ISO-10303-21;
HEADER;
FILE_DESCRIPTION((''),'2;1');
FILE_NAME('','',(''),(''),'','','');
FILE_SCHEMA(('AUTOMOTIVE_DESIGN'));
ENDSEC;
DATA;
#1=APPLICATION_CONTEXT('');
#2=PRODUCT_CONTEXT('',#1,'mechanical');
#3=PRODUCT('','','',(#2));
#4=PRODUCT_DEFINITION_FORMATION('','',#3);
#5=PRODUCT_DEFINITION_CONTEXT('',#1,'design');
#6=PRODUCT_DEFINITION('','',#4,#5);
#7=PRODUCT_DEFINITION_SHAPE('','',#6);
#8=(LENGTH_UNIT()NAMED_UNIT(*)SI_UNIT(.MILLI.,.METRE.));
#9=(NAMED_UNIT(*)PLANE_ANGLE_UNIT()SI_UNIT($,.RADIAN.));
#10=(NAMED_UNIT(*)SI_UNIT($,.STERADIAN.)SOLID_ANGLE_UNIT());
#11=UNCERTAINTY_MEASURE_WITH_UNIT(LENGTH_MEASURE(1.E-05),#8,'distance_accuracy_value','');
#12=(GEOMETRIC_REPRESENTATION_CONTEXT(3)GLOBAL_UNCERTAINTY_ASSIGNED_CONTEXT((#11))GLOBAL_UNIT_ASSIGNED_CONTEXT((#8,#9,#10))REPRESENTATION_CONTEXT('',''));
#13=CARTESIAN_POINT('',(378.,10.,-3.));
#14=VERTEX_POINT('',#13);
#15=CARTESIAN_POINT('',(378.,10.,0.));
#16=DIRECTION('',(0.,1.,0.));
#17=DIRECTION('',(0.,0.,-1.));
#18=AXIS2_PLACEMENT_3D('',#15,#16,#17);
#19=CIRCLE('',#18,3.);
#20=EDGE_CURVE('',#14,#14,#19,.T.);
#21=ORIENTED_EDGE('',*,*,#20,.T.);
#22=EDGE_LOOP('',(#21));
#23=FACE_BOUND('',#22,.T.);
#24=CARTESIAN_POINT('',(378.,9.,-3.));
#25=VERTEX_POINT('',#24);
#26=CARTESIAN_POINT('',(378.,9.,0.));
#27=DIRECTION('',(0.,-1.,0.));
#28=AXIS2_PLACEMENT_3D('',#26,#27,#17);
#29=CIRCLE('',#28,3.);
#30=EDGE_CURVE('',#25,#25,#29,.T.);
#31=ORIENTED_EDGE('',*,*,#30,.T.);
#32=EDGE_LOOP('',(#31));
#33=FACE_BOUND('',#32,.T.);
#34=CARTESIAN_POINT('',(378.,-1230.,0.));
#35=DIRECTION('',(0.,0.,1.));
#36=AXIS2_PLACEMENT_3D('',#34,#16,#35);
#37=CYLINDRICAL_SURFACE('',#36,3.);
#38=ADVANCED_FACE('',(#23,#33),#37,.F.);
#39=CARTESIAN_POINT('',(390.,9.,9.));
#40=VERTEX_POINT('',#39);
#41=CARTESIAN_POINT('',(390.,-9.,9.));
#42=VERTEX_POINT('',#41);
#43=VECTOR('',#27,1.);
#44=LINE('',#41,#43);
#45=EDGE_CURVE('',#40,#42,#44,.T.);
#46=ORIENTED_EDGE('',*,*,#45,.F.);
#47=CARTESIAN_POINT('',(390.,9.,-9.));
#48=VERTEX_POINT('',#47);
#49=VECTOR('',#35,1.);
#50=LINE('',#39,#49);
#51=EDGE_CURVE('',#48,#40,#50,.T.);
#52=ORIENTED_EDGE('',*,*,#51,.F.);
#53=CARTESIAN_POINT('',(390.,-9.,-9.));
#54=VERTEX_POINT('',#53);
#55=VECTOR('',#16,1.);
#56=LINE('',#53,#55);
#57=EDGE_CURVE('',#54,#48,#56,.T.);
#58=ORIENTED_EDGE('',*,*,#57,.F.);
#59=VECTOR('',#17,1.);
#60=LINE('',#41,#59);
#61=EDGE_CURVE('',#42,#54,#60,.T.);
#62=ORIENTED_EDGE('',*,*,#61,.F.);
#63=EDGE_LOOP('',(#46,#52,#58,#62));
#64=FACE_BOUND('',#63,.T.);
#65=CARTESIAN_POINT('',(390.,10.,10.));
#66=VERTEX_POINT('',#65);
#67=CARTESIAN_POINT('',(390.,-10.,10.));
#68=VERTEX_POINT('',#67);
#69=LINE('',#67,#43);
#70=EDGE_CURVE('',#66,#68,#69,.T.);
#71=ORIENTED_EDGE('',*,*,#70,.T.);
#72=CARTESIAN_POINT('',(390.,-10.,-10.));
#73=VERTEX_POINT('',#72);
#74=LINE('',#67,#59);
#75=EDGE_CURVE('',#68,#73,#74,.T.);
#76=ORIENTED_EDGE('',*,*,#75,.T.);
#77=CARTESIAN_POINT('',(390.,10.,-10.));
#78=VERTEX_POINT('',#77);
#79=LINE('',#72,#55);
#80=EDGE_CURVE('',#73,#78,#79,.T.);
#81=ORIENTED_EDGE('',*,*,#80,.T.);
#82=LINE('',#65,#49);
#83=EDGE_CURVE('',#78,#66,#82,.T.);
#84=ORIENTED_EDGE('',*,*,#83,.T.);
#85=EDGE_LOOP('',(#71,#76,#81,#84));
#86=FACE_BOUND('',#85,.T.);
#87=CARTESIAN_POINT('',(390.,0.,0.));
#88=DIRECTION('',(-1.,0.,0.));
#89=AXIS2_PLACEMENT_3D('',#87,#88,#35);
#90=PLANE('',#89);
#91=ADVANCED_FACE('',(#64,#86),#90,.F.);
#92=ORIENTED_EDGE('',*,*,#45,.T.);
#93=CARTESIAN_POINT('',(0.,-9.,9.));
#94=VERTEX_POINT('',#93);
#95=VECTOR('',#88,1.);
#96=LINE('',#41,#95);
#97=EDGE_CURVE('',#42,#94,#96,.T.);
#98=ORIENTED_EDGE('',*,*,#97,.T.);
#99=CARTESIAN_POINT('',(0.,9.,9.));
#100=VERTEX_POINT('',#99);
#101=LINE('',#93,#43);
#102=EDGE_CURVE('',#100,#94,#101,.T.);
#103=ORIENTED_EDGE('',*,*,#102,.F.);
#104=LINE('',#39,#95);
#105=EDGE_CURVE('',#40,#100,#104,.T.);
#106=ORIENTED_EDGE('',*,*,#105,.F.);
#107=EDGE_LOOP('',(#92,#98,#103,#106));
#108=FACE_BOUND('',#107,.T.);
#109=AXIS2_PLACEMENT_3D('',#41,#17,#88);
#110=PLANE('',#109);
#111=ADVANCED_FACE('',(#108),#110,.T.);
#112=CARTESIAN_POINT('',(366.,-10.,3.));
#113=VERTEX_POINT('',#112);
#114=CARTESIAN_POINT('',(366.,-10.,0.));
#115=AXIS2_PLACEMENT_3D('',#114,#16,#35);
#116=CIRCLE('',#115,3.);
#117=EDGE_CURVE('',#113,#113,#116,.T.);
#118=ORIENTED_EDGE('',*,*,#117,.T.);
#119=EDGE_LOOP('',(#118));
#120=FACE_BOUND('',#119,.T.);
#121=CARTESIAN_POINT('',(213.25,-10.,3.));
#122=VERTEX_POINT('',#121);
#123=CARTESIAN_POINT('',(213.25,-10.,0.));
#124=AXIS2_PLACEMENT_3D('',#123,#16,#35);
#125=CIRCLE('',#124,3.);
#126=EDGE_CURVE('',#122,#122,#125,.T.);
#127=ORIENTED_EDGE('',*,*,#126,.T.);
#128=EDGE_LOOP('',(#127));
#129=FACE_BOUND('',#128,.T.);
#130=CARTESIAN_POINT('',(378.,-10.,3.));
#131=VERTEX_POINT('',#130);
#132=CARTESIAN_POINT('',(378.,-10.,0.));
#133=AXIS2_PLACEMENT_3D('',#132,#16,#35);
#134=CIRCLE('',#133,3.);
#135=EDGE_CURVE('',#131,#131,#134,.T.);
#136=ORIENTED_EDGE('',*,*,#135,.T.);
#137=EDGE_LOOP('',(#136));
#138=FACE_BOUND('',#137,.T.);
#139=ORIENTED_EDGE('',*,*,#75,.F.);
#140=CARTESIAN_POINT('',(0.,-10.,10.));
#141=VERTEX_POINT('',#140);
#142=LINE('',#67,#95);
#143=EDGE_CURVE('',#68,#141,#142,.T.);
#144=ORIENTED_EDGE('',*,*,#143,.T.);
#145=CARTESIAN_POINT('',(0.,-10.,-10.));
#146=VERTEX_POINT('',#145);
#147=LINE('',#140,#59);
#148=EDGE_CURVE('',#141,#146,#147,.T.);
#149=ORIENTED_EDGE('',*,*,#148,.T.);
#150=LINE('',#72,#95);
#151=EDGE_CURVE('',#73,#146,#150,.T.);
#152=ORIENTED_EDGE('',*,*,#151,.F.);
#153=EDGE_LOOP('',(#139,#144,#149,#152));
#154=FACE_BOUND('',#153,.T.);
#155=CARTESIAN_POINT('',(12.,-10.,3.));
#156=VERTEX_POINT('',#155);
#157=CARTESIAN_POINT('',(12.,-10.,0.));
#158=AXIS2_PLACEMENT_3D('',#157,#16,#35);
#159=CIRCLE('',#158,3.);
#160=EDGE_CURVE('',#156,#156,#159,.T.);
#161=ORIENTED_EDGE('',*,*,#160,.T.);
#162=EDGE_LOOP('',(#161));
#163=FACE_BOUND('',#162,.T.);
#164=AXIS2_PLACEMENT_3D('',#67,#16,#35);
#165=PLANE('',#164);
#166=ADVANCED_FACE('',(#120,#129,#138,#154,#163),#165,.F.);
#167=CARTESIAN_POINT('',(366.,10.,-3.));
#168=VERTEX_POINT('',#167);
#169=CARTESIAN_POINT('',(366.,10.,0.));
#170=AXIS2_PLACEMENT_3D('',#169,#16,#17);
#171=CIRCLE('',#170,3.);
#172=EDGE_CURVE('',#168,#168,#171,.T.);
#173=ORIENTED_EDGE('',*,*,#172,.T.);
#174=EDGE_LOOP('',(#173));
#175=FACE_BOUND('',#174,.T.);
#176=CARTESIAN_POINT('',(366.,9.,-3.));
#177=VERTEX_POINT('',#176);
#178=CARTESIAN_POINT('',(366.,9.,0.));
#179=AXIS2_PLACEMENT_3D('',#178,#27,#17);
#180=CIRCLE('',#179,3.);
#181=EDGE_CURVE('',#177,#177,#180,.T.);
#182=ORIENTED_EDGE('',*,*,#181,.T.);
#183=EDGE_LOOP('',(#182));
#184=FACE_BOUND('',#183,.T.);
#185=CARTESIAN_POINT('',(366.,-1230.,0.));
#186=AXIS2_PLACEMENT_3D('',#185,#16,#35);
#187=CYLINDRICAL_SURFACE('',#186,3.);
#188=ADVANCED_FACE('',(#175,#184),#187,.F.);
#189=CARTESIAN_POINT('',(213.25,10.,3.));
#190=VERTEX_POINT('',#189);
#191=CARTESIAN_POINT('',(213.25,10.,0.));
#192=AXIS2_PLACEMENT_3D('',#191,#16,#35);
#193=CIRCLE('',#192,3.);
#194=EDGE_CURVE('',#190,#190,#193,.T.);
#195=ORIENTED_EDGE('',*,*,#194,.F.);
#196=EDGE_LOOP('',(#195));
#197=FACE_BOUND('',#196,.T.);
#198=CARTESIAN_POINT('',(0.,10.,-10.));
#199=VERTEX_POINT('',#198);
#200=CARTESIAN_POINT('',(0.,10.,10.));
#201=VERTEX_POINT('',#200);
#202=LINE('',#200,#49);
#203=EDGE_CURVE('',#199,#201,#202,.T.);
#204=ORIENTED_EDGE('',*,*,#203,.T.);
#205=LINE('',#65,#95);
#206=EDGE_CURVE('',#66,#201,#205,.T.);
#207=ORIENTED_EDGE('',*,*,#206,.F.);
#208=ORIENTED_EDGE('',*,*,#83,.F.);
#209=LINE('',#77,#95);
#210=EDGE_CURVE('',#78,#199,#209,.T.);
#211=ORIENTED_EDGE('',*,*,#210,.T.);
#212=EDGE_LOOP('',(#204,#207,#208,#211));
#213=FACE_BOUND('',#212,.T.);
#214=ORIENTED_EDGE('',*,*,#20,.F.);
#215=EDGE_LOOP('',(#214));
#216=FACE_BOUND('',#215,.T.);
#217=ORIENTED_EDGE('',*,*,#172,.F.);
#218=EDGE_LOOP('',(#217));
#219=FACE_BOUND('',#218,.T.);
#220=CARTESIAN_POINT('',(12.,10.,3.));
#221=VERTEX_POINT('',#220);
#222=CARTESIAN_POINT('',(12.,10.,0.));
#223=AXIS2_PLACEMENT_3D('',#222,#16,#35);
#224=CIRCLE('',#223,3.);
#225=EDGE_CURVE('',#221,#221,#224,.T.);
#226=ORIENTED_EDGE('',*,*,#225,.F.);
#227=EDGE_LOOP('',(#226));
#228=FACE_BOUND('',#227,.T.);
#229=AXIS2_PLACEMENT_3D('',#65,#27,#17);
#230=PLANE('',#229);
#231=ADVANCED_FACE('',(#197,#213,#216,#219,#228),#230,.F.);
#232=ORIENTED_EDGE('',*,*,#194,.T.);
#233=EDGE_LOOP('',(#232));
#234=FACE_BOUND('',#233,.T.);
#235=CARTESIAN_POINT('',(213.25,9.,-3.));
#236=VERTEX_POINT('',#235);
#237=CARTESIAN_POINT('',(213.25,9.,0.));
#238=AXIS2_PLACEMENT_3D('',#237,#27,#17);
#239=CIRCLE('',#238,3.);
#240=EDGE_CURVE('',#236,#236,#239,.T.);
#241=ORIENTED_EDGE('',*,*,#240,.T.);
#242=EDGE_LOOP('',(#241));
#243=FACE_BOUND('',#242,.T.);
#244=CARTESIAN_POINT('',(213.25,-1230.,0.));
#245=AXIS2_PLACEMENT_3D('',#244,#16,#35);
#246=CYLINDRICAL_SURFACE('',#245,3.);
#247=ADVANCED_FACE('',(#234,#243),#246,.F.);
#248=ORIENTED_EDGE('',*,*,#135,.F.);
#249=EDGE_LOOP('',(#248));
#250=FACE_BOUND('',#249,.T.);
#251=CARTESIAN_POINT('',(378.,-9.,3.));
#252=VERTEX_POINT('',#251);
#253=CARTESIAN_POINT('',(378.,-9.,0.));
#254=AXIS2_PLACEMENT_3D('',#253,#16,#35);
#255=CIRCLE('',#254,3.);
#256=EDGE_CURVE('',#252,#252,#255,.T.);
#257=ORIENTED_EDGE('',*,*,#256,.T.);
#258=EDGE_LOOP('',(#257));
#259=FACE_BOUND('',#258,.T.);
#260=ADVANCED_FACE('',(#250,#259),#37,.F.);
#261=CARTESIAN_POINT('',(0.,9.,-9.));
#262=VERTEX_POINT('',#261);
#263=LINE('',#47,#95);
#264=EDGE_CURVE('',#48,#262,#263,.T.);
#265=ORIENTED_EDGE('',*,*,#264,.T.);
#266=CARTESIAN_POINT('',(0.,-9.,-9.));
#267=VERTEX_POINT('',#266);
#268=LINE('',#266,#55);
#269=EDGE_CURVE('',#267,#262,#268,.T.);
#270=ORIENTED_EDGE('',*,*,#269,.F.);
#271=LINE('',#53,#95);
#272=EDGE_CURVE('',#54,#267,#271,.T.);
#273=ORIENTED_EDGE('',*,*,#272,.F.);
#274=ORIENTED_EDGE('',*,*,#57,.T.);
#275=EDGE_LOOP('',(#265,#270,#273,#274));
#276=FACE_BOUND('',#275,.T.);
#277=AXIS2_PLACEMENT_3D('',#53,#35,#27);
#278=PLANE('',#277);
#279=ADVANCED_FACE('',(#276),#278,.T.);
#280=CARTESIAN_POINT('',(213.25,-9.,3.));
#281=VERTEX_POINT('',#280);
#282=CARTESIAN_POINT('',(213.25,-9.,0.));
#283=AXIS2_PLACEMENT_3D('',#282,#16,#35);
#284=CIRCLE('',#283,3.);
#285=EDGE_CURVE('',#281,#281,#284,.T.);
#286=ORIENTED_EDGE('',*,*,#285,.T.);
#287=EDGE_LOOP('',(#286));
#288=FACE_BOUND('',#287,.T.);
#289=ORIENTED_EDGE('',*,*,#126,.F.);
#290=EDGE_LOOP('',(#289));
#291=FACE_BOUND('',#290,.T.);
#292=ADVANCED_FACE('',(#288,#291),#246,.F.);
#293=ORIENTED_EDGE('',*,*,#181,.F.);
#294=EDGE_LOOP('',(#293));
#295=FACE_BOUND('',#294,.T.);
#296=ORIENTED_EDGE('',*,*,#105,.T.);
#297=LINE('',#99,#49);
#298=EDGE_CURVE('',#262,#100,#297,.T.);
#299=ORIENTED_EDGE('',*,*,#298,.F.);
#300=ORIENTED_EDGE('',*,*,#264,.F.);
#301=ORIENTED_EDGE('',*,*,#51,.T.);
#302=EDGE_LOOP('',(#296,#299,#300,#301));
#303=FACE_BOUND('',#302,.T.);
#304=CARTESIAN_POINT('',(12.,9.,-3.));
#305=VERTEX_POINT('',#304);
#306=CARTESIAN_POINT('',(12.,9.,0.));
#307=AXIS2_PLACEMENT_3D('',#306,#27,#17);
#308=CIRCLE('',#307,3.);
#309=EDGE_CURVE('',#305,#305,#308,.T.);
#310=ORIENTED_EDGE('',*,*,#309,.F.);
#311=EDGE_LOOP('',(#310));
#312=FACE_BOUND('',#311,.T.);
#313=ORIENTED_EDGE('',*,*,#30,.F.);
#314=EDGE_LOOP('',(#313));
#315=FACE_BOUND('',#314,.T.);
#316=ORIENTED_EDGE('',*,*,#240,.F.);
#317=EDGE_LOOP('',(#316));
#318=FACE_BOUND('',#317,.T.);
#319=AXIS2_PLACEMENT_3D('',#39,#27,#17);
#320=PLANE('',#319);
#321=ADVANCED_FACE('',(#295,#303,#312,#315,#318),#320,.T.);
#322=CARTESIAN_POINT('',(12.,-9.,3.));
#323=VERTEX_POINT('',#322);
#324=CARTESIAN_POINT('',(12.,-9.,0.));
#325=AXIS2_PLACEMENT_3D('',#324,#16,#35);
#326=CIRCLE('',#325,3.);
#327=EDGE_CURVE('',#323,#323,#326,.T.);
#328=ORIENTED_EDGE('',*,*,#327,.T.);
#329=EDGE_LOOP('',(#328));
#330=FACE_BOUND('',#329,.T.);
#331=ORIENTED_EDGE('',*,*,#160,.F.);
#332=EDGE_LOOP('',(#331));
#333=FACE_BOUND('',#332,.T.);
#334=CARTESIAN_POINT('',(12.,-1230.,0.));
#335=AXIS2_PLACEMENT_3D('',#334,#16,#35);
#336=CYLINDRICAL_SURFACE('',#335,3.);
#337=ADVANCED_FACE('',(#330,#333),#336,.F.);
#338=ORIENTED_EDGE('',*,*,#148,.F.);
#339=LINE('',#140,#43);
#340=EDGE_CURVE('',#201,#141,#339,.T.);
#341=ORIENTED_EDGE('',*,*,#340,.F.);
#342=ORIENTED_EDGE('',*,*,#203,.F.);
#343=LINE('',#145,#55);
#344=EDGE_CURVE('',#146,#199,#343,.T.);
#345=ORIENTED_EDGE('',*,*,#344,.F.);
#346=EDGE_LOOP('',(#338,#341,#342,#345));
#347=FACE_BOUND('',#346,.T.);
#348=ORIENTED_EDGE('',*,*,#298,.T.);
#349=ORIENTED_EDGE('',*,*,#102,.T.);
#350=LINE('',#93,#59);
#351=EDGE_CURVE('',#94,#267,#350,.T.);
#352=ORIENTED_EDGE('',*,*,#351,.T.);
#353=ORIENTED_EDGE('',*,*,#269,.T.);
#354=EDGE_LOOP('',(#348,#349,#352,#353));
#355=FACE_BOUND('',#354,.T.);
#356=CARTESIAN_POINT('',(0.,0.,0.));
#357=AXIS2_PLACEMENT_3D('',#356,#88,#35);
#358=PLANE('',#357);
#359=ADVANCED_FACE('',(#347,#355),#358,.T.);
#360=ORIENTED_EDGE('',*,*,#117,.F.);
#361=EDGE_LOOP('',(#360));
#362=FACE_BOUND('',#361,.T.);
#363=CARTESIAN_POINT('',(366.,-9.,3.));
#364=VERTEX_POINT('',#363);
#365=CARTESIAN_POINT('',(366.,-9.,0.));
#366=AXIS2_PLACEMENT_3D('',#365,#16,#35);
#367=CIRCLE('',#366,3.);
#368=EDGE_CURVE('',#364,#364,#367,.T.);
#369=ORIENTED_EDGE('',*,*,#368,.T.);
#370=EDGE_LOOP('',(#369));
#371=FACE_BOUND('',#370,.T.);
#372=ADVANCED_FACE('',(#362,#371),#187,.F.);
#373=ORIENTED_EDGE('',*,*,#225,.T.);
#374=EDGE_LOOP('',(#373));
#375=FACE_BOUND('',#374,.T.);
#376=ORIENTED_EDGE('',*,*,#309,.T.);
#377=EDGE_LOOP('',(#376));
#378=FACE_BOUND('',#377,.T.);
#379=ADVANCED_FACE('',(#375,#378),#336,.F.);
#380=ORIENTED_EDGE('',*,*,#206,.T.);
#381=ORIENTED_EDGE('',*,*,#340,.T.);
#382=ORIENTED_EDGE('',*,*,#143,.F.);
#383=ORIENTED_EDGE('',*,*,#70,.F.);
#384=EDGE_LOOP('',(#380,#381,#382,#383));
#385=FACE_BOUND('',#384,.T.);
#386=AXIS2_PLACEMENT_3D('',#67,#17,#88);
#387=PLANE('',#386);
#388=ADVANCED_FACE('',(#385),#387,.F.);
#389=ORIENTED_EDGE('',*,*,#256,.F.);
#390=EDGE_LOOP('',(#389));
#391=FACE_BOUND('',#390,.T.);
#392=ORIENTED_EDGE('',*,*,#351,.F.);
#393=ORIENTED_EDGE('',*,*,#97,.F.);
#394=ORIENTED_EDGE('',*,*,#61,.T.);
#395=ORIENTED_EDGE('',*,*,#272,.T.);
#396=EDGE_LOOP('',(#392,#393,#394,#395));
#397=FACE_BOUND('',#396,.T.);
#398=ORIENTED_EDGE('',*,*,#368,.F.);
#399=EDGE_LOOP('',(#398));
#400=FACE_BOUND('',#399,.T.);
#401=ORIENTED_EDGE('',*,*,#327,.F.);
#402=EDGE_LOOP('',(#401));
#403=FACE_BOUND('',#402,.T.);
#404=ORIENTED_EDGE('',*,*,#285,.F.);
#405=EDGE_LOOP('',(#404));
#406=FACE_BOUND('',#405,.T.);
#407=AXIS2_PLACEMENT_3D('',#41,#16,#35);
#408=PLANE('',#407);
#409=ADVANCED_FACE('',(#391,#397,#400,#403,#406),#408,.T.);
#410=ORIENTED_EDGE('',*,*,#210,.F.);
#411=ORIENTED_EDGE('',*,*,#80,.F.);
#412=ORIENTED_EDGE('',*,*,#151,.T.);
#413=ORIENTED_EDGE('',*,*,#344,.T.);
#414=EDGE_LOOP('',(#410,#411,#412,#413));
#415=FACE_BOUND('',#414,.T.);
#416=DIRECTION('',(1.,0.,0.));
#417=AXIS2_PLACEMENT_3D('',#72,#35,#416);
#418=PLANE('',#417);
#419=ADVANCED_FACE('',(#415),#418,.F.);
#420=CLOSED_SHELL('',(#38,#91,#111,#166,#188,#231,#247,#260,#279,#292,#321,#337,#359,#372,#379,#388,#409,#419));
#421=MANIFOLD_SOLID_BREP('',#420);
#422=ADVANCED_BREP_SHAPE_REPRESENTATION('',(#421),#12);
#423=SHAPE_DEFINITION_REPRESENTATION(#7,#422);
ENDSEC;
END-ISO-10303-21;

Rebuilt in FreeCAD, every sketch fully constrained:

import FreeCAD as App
import Part
import Sketcher
Q = App.Units.Quantity

doc = App.newDocument("Part")
params = doc.addObject("Spreadsheet::Sheet", "Params")
for row, (alias, value) in enumerate([
    ("sketch1_width", "20 mm"),
    ("sketch1_width2", "18 mm"),
    ("pad1_length", "390 mm"),
    ("sketch2_diameter", "6 mm"),
    ("pocket1_length", "1240 mm"),
], start=1):
    params.set(f"A{row}", alias)
    params.set(f"B{row}", "=" + value)
    params.setAlias(f"B{row}", alias)

body = doc.addObject("PartDesign::Body", "Body")

# Sketch on YZ plane
sketch1 = doc.addObject("Sketcher::SketchObject", "Sketch")
body.addObject(sketch1)
sketch1.AttachmentSupport = (doc.YZ_Plane, [""])
sketch1.MapMode = "FlatFace"
sketch1.addGeometry([
    Part.LineSegment(App.Vector(10, 10, 0), App.Vector(-10, 10, 0)),  # 0
    Part.LineSegment(App.Vector(-10, 10, 0), App.Vector(-10, -10, 0)),  # 1
    Part.LineSegment(App.Vector(-10, -10, 0), App.Vector(10, -10, 0)),  # 2
    Part.LineSegment(App.Vector(10, -10, 0), App.Vector(10, 10, 0)),  # 3
    Part.LineSegment(App.Vector(-9, -9, 0), App.Vector(-9, 9, 0)),  # 4
    Part.LineSegment(App.Vector(-9, 9, 0), App.Vector(9, 9, 0)),  # 5
    Part.LineSegment(App.Vector(9, 9, 0), App.Vector(9, -9, 0)),  # 6
    Part.LineSegment(App.Vector(9, -9, 0), App.Vector(-9, -9, 0)),  # 7
], False)
sketch1.addConstraint([
    Sketcher.Constraint("Coincident", 0, 2, 1, 1),
    Sketcher.Constraint("Coincident", 1, 2, 2, 1),
    Sketcher.Constraint("Coincident", 2, 2, 3, 1),
    Sketcher.Constraint("Coincident", 3, 2, 0, 1),
    Sketcher.Constraint("Coincident", 4, 2, 5, 1),
    Sketcher.Constraint("Coincident", 5, 2, 6, 1),
    Sketcher.Constraint("Coincident", 6, 2, 7, 1),
    Sketcher.Constraint("Coincident", 7, 2, 4, 1),
    Sketcher.Constraint("Horizontal", 0),
    Sketcher.Constraint("Vertical", 1),
    Sketcher.Constraint("Horizontal", 2),
    Sketcher.Constraint("Vertical", 3),
    Sketcher.Constraint("Vertical", 4),
    Sketcher.Constraint("Horizontal", 5),
    Sketcher.Constraint("Vertical", 6),
    Sketcher.Constraint("Horizontal", 7),
    Sketcher.Constraint("Symmetric", 0, 2, 2, 2, -1, 1),
    Sketcher.Constraint("Symmetric", 4, 2, 6, 2, -1, 1),
    Sketcher.Constraint("Equal", 2, 1),
    Sketcher.Constraint("Equal", 7, 4),
    Sketcher.Constraint("DistanceX", 0, 2, 0, 1, Q("20 mm")),
    Sketcher.Constraint("DistanceX", 5, 1, 5, 2, Q("18 mm")),
])
sketch1.setExpression("Constraints[20]", "Params.sketch1_width")
sketch1.setExpression("Constraints[21]", "Params.sketch1_width2")
pad1 = doc.addObject("PartDesign::Pad", "Pad")
body.addObject(pad1)
pad1.Profile = sketch1
pad1.setExpression("Length", "Params.pad1_length")

# Sketch on XZ plane
sketch2 = doc.addObject("Sketcher::SketchObject", "Sketch001")
body.addObject(sketch2)
sketch2.AttachmentSupport = (doc.XZ_Plane, [""])
sketch2.MapMode = "FlatFace"
sketch2.AttachmentOffset = App.Placement(App.Vector(0, 0, -10), App.Rotation())
sketch2.addGeometry([
    Part.Circle(App.Vector(12, 0, 0), App.Vector(0, 0, 1), 3),
    Part.Circle(App.Vector(213.2, 0, 0), App.Vector(0, 0, 1), 3),
    Part.Circle(App.Vector(378, 0, 0), App.Vector(0, 0, 1), 3),
    Part.Circle(App.Vector(366, 0, 0), App.Vector(0, 0, 1), 3),
], False)
sketch2.addConstraint([
    Sketcher.Constraint("Equal", 0, 1),
    Sketcher.Constraint("Equal", 1, 2),
    Sketcher.Constraint("Equal", 2, 3),
    Sketcher.Constraint("PointOnObject", 0, 3, -1),
    Sketcher.Constraint("PointOnObject", 1, 3, -1),
    Sketcher.Constraint("PointOnObject", 2, 3, -1),
    Sketcher.Constraint("PointOnObject", 3, 3, -1),
    Sketcher.Constraint("Diameter", 0, Q("6 mm")),
    Sketcher.Constraint("DistanceX", -1, 1, 0, 3, Q("12 mm")),
    Sketcher.Constraint("DistanceX", -1, 1, 2, 3, Q("378 mm")),
    Sketcher.Constraint("DistanceX", -1, 1, 3, 3, Q("366 mm")),
    Sketcher.Constraint("DistanceX", -1, 1, 1, 3, Q("213.25 mm")),
])
sketch2.setExpression("Constraints[7]", "Params.sketch2_diameter")
pocket1 = doc.addObject("PartDesign::Pocket", "Pocket")
body.addObject(pocket1)
pocket1.Profile = sketch2
pocket1.setExpression("Length", "Params.pocket1_length")
pocket1.Reversed = True

doc.recompute()
